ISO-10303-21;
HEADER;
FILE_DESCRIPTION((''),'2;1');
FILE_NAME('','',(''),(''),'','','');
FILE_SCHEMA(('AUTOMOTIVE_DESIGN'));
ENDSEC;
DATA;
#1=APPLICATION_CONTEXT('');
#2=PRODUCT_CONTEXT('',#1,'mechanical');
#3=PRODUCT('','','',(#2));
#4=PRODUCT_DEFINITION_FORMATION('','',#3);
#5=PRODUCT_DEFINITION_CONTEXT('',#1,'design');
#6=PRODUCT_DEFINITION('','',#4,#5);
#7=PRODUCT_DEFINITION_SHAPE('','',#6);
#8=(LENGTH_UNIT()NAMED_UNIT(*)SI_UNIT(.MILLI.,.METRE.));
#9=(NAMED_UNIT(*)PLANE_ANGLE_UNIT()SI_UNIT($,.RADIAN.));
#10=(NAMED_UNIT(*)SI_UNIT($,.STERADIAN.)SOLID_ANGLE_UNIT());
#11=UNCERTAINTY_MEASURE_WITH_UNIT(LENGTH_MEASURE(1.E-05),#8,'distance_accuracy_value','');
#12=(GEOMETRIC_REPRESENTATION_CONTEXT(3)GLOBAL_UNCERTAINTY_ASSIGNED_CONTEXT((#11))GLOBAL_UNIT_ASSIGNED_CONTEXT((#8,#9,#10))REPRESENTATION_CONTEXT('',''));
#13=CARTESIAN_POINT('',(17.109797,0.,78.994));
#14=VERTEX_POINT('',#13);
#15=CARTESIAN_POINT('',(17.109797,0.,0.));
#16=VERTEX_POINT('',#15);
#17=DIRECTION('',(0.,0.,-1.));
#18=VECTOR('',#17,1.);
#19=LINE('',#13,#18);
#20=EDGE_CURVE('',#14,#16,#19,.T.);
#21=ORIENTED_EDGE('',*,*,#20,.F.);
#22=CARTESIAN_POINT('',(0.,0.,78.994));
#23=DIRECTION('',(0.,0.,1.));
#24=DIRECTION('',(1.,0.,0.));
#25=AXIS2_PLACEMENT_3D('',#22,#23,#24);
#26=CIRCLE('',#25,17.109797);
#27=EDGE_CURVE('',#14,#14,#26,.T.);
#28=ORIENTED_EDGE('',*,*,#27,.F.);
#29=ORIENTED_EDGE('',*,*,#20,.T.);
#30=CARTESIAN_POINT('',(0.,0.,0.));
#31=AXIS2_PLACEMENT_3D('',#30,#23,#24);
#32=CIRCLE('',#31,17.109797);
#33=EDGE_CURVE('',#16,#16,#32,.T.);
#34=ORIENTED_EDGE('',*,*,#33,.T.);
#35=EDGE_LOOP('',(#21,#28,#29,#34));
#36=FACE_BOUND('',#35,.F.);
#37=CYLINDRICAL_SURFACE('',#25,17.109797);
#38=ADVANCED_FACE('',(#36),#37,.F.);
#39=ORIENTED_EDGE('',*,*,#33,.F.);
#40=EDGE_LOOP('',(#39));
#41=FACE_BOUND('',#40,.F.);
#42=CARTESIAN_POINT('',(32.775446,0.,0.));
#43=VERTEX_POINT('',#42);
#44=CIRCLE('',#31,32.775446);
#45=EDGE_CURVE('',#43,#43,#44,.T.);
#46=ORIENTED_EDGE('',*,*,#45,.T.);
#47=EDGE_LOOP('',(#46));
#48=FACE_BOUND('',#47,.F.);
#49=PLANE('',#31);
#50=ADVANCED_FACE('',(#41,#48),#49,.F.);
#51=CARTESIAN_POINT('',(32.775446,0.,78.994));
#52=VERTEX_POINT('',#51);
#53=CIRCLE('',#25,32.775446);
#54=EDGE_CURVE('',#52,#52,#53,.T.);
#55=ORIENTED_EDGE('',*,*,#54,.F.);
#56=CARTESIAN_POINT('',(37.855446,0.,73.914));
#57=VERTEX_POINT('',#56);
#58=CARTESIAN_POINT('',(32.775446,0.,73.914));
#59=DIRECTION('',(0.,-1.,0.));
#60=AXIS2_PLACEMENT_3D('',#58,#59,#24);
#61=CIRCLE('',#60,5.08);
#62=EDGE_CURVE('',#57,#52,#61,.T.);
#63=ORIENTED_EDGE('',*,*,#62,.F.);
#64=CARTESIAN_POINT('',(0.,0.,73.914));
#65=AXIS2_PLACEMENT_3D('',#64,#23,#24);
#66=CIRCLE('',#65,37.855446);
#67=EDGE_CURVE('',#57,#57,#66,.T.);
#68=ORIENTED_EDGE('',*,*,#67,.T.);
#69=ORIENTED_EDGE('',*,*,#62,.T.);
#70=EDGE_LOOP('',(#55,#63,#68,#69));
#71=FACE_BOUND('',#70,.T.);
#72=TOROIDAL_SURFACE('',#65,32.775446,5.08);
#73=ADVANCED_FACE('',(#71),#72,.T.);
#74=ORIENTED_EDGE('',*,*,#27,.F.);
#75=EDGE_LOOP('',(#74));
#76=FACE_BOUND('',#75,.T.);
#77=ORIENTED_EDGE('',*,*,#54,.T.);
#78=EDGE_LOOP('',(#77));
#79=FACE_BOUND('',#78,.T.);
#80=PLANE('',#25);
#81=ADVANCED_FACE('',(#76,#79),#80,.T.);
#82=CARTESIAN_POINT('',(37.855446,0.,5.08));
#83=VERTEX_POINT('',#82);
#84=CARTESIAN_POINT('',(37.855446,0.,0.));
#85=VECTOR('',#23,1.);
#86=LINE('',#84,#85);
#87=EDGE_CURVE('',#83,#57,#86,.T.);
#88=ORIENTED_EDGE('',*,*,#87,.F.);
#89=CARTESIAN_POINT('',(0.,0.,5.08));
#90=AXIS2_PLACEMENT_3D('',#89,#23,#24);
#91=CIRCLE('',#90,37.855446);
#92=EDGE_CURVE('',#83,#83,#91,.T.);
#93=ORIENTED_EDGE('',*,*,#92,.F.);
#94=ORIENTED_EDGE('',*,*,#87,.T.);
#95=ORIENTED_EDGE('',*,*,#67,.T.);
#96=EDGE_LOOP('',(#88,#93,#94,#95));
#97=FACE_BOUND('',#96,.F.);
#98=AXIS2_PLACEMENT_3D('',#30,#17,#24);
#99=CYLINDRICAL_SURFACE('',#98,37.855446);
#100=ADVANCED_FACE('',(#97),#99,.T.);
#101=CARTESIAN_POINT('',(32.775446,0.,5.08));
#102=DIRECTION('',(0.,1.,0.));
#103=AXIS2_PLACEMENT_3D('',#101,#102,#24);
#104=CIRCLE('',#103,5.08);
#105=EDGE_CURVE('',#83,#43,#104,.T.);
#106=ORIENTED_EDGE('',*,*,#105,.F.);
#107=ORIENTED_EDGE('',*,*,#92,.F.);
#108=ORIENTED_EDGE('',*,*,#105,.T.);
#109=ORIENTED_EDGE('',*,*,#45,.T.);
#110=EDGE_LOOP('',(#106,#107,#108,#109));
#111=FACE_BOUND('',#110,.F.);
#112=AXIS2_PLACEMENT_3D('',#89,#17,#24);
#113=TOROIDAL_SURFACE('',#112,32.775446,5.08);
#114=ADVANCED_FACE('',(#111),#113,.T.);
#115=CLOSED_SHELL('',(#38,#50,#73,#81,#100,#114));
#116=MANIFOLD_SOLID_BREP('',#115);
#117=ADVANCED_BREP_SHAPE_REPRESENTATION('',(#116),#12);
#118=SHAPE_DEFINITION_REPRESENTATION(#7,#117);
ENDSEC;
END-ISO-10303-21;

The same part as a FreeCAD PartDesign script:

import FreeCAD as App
import Part
import Sketcher

V = App.Vector
Q = App.Units.Quantity

doc = App.newDocument("Part")
body = doc.addObject("PartDesign::Body", "Body")

sketch1 = body.newObject("Sketcher::SketchObject", "Sketch")
sketch1.AttachmentSupport = (doc.getObject("XY_Plane"), [""])
sketch1.MapMode = "FlatFace"
sketch1.addGeometry(Part.Circle(V(0, 0, 0), V(0, 0, 1), 37.855446), False)
sketch1.addConstraint(Sketcher.Constraint("Coincident", 0, 3, -1, 1))
sketch1.addConstraint(Sketcher.Constraint("Diameter", 0, Q("75.710892 mm")))
pad1 = body.newObject("PartDesign::Pad", "Pad")
pad1.Profile = sketch1
pad1.Length = Q("3.11 in")
doc.recompute()

fillet = body.newObject("PartDesign::Fillet", "Fillet")
fillet.Base = (pad1, ["Edge1"])
fillet.UseAllEdges = True
fillet.Radius = Q("0.2 in")

sketch2 = body.newObject("Sketcher::SketchObject", "Sketch001")
sketch2.AttachmentSupport = (doc.getObject("XY_Plane"), [""])
sketch2.MapMode = "FlatFace"
sketch2.AttachmentOffset = App.Placement(V(0, 0, 3.11 * 25.4), App.Rotation())
sketch2.addGeometry(Part.Circle(V(0, 0, 0), V(0, 0, 1), 17.109797), False)
sketch2.addConstraint(Sketcher.Constraint("Coincident", 0, 3, -1, 1))
sketch2.addConstraint(Sketcher.Constraint("Diameter", 0, Q("34.219594 mm")))
pocket1 = body.newObject("PartDesign::Pocket", "Pocket")
pocket1.Profile = sketch2
pocket1.Length = Q("4.65 in")

doc.recompute()
